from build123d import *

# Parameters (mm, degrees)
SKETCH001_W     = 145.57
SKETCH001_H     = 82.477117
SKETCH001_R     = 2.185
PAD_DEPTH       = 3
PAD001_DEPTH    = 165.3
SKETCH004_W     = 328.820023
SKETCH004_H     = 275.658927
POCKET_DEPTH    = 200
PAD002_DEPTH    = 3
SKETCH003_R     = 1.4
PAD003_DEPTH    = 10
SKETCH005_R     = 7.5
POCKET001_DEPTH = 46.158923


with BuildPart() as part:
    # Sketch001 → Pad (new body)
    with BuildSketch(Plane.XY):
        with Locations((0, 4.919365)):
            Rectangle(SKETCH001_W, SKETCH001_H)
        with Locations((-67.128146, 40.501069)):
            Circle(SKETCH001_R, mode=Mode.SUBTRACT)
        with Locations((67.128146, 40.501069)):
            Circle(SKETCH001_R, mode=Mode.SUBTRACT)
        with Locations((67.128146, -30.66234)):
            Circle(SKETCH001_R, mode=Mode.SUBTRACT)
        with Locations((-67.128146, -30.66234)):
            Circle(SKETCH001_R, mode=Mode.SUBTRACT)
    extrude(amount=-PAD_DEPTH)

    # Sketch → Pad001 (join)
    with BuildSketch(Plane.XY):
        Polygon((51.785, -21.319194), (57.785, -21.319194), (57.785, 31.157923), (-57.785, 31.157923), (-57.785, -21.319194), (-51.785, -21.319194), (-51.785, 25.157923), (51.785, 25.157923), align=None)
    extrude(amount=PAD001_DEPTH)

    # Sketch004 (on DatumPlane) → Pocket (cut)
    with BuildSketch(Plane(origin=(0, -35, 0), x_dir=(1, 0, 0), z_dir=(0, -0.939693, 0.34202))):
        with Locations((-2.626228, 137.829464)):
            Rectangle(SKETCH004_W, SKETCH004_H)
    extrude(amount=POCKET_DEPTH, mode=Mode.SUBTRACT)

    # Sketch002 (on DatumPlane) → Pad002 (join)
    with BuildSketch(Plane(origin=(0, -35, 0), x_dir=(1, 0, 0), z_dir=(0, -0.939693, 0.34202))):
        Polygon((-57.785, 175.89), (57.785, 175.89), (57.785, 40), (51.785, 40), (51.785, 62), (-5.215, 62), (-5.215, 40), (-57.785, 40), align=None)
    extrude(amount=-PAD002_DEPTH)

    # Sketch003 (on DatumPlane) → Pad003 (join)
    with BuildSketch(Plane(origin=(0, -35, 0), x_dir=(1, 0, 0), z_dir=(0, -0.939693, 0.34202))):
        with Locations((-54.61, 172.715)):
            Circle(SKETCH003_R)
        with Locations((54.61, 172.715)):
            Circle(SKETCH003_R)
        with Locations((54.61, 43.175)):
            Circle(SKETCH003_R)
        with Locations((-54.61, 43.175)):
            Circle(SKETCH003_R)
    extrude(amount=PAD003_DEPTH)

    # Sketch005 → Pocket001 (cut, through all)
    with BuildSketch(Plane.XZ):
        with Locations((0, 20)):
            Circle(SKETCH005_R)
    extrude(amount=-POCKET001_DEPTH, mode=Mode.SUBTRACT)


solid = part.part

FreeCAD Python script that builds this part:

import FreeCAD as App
import Part
import Sketcher


def add_polygon(sketch, points):
    """Adds a closed chain of lines whose ends are joined by coincident constraints."""
    first, n = sketch.GeometryCount, len(points)
    for a, b in zip(points, points[1:] + points[:1]):
        sketch.addGeometry(Part.LineSegment(App.Vector(*a, 0), App.Vector(*b, 0)), False)
    for i in range(n):
        sketch.addConstraint(Sketcher.Constraint("Coincident", first + i, 2, first + (i + 1) % n, 1))

doc = App.newDocument("Part")
body = doc.addObject("PartDesign::Body", "Body")

# Sketch on XY plane
sketch1 = body.newObject("Sketcher::SketchObject", "Sketch")
sketch1.AttachmentSupport = (doc.getObject("XY_Plane"), [""])
sketch1.MapMode = "FlatFace"
add_polygon(sketch1, [(-72.8, 46.2), (-72.8, -36.3), (72.8, -36.3), (72.8, 46.2)])  # lines 0-3
sketch1.addGeometry(Part.Circle(App.Vector(-67.1, -30.7, 0), App.Vector(0, 0, 1), 2.2), False)  # 4
sketch1.addGeometry(Part.Circle(App.Vector(67.1, -30.7, 0), App.Vector(0, 0, 1), 2.2), False)  # 5
sketch1.addGeometry(Part.Circle(App.Vector(-67.1, 40.5, 0), App.Vector(0, 0, 1), 2.2), False)  # 6
sketch1.addGeometry(Part.Circle(App.Vector(67.1, 40.5, 0), App.Vector(0, 0, 1), 2.2), False)  # 7
sketch1.addConstraint([
    Sketcher.Constraint("Vertical", 0),
    Sketcher.Constraint("Horizontal", 1),
    Sketcher.Constraint("Vertical", 2),
    Sketcher.Constraint("Horizontal", 3),
    Sketcher.Constraint("Equal", 4, 5),
    Sketcher.Constraint("Equal", 5, 6),
    Sketcher.Constraint("Equal", 6, 7),
    Sketcher.Constraint("Symmetric", 4, 3, 5, 3, -2),
    Sketcher.Constraint("Symmetric", 6, 3, 7, 3, -2),
    Sketcher.Constraint("Vertical", 4, 3, 6, 3),
    Sketcher.Constraint("Diameter", 4, 4.37),
    Sketcher.Constraint("DistanceX", 1, 1, 1, 2, 145.57),
    Sketcher.Constraint("DistanceX", 0, 2, -1, 1, 72.785),
    Sketcher.Constraint("DistanceY", 0, 2, 0, 1, 82.477117),
    Sketcher.Constraint("DistanceY", 4, 3, -1, 1, 30.66234),
    Sketcher.Constraint("DistanceY", -1, 1, 6, 3, 40.501069),
    Sketcher.Constraint("DistanceX", 4, 3, 5, 3, 134.256292),
    Sketcher.Constraint("DistanceY", 0, 2, -1, 1, 36.319193),
])
pad1 = body.newObject("PartDesign::Pad", "Pad")
pad1.Profile = sketch1
pad1.Length = 3
pad1.Reversed = True

# Sketch on XY plane
sketch2 = body.newObject("Sketcher::SketchObject", "Sketch001")
sketch2.AttachmentSupport = (doc.getObject("XY_Plane"), [""])
sketch2.MapMode = "FlatFace"
add_polygon(sketch2, [(52, -21), (58, -21), (58, 31), (-58, 31), (-58, -21), (-52, -21), (-52, 25), (52, 25)])  # lines 0-7
sketch2.addConstraint([
    Sketcher.Constraint("Horizontal", 0),
    Sketcher.Constraint("Vertical", 1),
    Sketcher.Constraint("Horizontal", 2),
    Sketcher.Constraint("Vertical", 3),
    Sketcher.Constraint("Horizontal", 4),
    Sketcher.Constraint("Vertical", 5),
    Sketcher.Constraint("Horizontal", 6),
    Sketcher.Constraint("Vertical", 7),
    Sketcher.Constraint("Symmetric", 0, 2, 3, 2, -2),
    Sketcher.Constraint("Equal", 0, 4),
    Sketcher.Constraint("DistanceX", 0, 1, 0, 2, 6.0),
    Sketcher.Constraint("DistanceY", 5, 2, 2, 2, 6.0),
    Sketcher.Constraint("DistanceX", 2, 2, 2, 1, 115.57),
    Sketcher.Constraint("DistanceY", 1, 1, 1, 2, 52.477117),
    Sketcher.Constraint("DistanceY", 0, 2, -1, 1, 21.319194),
])
pad2 = body.newObject("PartDesign::Pad", "Pad001")
pad2.Profile = sketch2
pad2.Length = 165.3

# Sketch on an angled plane
sketch3 = body.newObject("Sketcher::SketchObject", "Sketch002")
sketch3.Placement = App.Placement(App.Vector(0, -35, 0), App.Rotation(App.Vector(1, 0, 0), App.Vector(0, 0.342019895, 0.939692711), App.Vector(0, -0.939692711, 0.342019895), "ZXY"))
add_polygon(sketch3, [(-167, 276), (-167, 0), (162, 0), (162, 276)])  # lines 0-3
sketch3.addConstraint([
    Sketcher.Constraint("Vertical", 0),
    Sketcher.Constraint("Horizontal", 1),
    Sketcher.Constraint("Vertical", 2),
    Sketcher.Constraint("Horizontal", 3),
    Sketcher.Constraint("PointOnObject", 0, 2, -1),
    Sketcher.Constraint("DistanceX", 1, 1, 1, 2, 328.820023),
    Sketcher.Constraint("DistanceY", 0, 2, 0, 1, 275.658927),
    Sketcher.Constraint("DistanceX", 0, 2, -1, 1, 167.036239),
])
pocket1 = body.newObject("PartDesign::Pocket", "Pocket")
pocket1.Profile = sketch3
pocket1.Length = 200
pocket1.Reversed = True

# Sketch on an angled plane
sketch4 = body.newObject("Sketcher::SketchObject", "Sketch003")
sketch4.Placement = App.Placement(App.Vector(0, -35, 0), App.Rotation(App.Vector(1, 0, 0), App.Vector(0, 0.342019895, 0.939692711), App.Vector(0, -0.939692711, 0.342019895), "ZXY"))
add_polygon(sketch4, [(58, 176), (-58, 176), (-58, 40), (-5, 40), (-5, 62), (52, 62), (52, 40), (58, 40)])  # lines 0-7
sketch4.addConstraint([
    Sketcher.Constraint("Horizontal", 0),
    Sketcher.Constraint("Vertical", 1),
    Sketcher.Constraint("Horizontal", 2),
    Sketcher.Constraint("Vertical", 3),
    Sketcher.Constraint("Horizontal", 4),
    Sketcher.Constraint("Vertical", 5),
    Sketcher.Constraint("Horizontal", 6),
    Sketcher.Constraint("Vertical", 7),
    Sketcher.Constraint("Symmetric", 1, 2, 6, 2, -2),
    Sketcher.Constraint("DistanceX", 4, 1, 4, 2, 57.0),
    Sketcher.Constraint("DistanceX", 6, 1, 6, 2, 6.0),
    Sketcher.Constraint("DistanceY", 3, 1, 3, 2, 22.0),
    Sketcher.Constraint("DistanceY", -1, 1, 1, 2, 40.0),
    Sketcher.Constraint("DistanceX", 0, 2, 0, 1, 115.57),
    Sketcher.Constraint("DistanceY", 1, 2, 1, 1, 135.89),
])
pad3 = body.newObject("PartDesign::Pad", "Pad002")
pad3.Profile = sketch4
pad3.Length = 3
pad3.Reversed = True

# Sketch on an angled plane
sketch5 = body.newObject("Sketcher::SketchObject", "Sketch004")
sketch5.Placement = App.Placement(App.Vector(0, -35, 0), App.Rotation(App.Vector(1, 0, 0), App.Vector(0, 0.342019895, 0.939692711), App.Vector(0, -0.939692711, 0.342019895), "ZXY"))
sketch5.addGeometry([
    Part.Circle(App.Vector(-54.6, 172.7, 0), App.Vector(0, 0, 1), 1.4),
    Part.Circle(App.Vector(54.6, 172.7, 0), App.Vector(0, 0, 1), 1.4),
    Part.Circle(App.Vector(54.6, 43.2, 0), App.Vector(0, 0, 1), 1.4),
    Part.Circle(App.Vector(-54.6, 43.2, 0), App.Vector(0, 0, 1), 1.4),
], False)
sketch5.addConstraint([
    Sketcher.Constraint("Equal", 0, 1),
    Sketcher.Constraint("Equal", 1, 2),
    Sketcher.Constraint("Equal", 2, 3),
    Sketcher.Constraint("Symmetric", 0, 3, 1, 3, -2),
    Sketcher.Constraint("Symmetric", 2, 3, 3, 3, -2),
    Sketcher.Constraint("Vertical", 1, 3, 2, 3),
    Sketcher.Constraint("Diameter", 0, 2.8),
    Sketcher.Constraint("DistanceX", 0, 3, -1, 1, 54.61),
    Sketcher.Constraint("DistanceY", 2, 3, 1, 3, 129.54),
    Sketcher.Constraint("DistanceY", -1, 1, 0, 3, 172.715),
])
pad4 = body.newObject("PartDesign::Pad", "Pad003")
pad4.Profile = sketch5
pad4.Length = 10

# Sketch on XZ plane
sketch6 = body.newObject("Sketcher::SketchObject", "Sketch005")
sketch6.AttachmentSupport = (doc.getObject("XZ_Plane"), [""])
sketch6.MapMode = "FlatFace"
sketch6.addGeometry(Part.Circle(App.Vector(0, 20, 0), App.Vector(0, 0, 1), 8), False)
sketch6.addConstraint([
    Sketcher.Constraint("PointOnObject", 0, 3, -2),
    Sketcher.Constraint("Diameter", 0, 15.0),
    Sketcher.Constraint("DistanceY", -1, 1, 0, 3, 20.0),
])
pocket2 = body.newObject("PartDesign::Pocket", "Pocket001")
pocket2.Profile = sketch6
pocket2.Type = "ThroughAll"

doc.recompute()
